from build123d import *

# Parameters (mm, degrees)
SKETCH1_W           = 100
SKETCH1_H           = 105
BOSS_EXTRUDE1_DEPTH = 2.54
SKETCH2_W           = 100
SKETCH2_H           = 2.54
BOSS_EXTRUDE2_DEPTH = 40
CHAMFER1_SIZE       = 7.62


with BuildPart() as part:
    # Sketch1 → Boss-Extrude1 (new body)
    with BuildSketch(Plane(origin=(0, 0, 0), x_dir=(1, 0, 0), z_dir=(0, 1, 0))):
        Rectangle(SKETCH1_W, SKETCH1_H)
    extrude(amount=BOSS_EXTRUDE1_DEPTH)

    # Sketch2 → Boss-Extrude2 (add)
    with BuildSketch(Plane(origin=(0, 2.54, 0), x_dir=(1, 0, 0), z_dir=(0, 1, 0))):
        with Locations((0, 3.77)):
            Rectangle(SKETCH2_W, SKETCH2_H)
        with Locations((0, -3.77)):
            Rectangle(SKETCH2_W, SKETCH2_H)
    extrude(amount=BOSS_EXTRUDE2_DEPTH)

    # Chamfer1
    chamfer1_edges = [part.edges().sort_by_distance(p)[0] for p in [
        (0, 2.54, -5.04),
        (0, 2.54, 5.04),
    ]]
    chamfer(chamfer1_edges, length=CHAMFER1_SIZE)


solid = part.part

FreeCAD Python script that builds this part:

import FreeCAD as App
import Part
import Sketcher


def edges_at(feature, points):
    """Names of the edges that pass closest to the given points."""
    edges = feature.Shape.Edges
    near = lambda p: min(range(len(edges)), key=lambda i: edges[i].distToShape(Part.Vertex(*p))[0])
    return sorted({f"Edge{near(p) + 1}" for p in points})

doc = App.newDocument("Part")
body = doc.addObject("PartDesign::Body", "Body")

sketch1 = body.newObject("Sketcher::SketchObject", "Sketch")
sketch1.AttachmentSupport = (doc.getObject("XZ_Plane"), [""])
sketch1.MapMode = "FlatFace"
sketch1.addGeometry([
    Part.LineSegment(App.Vector(-50, -52, 0), App.Vector(-50, 52, 0)),
    Part.LineSegment(App.Vector(-50, 52, 0), App.Vector(50, 52, 0)),
    Part.LineSegment(App.Vector(50, 52, 0), App.Vector(50, -52, 0)),
    Part.LineSegment(App.Vector(50, -52, 0), App.Vector(-50, -52, 0)),
], False)
sketch1.addConstraint([
    Sketcher.Constraint("Coincident", 0, 2, 1, 1),
    Sketcher.Constraint("Coincident", 1, 2, 2, 1),
    Sketcher.Constraint("Coincident", 2, 2, 3, 1),
    Sketcher.Constraint("Coincident", 3, 2, 0, 1),
    Sketcher.Constraint("Vertical", 0),
    Sketcher.Constraint("Horizontal", 1),
    Sketcher.Constraint("Vertical", 2),
    Sketcher.Constraint("Horizontal", 3),
    Sketcher.Constraint("Symmetric", 0, 2, 2, 2, -1, 1),
    Sketcher.Constraint("DistanceX", 1, 1, 1, 2, 100.0),
    Sketcher.Constraint("DistanceY", 0, 1, 0, 2, 105.0),
])
pad1 = body.newObject("PartDesign::Pad", "Pad")
pad1.Profile = sketch1
pad1.Length = 2.54
pad1.Reversed = True

sketch2 = body.newObject("Sketcher::SketchObject", "Sketch001")
sketch2.AttachmentSupport = (doc.getObject("XZ_Plane"), [""])
sketch2.MapMode = "FlatFace"
sketch2.AttachmentOffset = App.Placement(App.Vector(0, 0, -2.54), App.Rotation())
sketch2.addGeometry([
    Part.LineSegment(App.Vector(-50, -5, 0), App.Vector(-50, -2.5, 0)),
    Part.LineSegment(App.Vector(-50, -2.5, 0), App.Vector(50, -2.5, 0)),
    Part.LineSegment(App.Vector(50, -2.5, 0), App.Vector(50, -5, 0)),
    Part.LineSegment(App.Vector(50, -5, 0), App.Vector(-50, -5, 0)),
    Part.LineSegment(App.Vector(-50, 2.5, 0), App.Vector(-50, 5, 0)),
    Part.LineSegment(App.Vector(-50, 5, 0), App.Vector(50, 5, 0)),
    Part.LineSegment(App.Vector(50, 5, 0), App.Vector(50, 2.5, 0)),
    Part.LineSegment(App.Vector(50, 2.5, 0), App.Vector(-50, 2.5, 0)),
], False)
sketch2.addConstraint([
    Sketcher.Constraint("Coincident", 0, 2, 1, 1),
    Sketcher.Constraint("Coincident", 1, 2, 2, 1),
    Sketcher.Constraint("Coincident", 2, 2, 3, 1),
    Sketcher.Constraint("Coincident", 3, 2, 0, 1),
    Sketcher.Constraint("Coincident", 4, 2, 5, 1),
    Sketcher.Constraint("Coincident", 5, 2, 6, 1),
    Sketcher.Constraint("Coincident", 6, 2, 7, 1),
    Sketcher.Constraint("Coincident", 7, 2, 4, 1),
    Sketcher.Constraint("Vertical", 0),
    Sketcher.Constraint("Horizontal", 1),
    Sketcher.Constraint("Vertical", 2),
    Sketcher.Constraint("Horizontal", 3),
    Sketcher.Constraint("Vertical", 4),
    Sketcher.Constraint("Horizontal", 5),
    Sketcher.Constraint("Vertical", 6),
    Sketcher.Constraint("Horizontal", 7),
    Sketcher.Constraint("Symmetric", 2, 2, 4, 2, -1, 1),
    Sketcher.Constraint("Symmetric", 0, 2, 6, 2, -1, 1),
    Sketcher.Constraint("Vertical", 3, 2, 4, 2),
    Sketcher.Constraint("DistanceX", 1, 1, 1, 2, 100.0),
    Sketcher.Constraint("DistanceY", 1, 2, 6, 2, 5.0),
    Sketcher.Constraint("DistanceY", 0, 1, 0, 2, 2.54),
])
pad2 = body.newObject("PartDesign::Pad", "Pad001")
pad2.Profile = sketch2
pad2.Length = 40
pad2.Reversed = True
doc.recompute()

chamfer = body.newObject("PartDesign::Chamfer", "Chamfer")
chamfer.Base = (pad2, edges_at(pad2, [(0, 2.54, -5.04), (0, 2.54, 5.04)]))
chamfer.Size = 7.62

doc.recompute()
